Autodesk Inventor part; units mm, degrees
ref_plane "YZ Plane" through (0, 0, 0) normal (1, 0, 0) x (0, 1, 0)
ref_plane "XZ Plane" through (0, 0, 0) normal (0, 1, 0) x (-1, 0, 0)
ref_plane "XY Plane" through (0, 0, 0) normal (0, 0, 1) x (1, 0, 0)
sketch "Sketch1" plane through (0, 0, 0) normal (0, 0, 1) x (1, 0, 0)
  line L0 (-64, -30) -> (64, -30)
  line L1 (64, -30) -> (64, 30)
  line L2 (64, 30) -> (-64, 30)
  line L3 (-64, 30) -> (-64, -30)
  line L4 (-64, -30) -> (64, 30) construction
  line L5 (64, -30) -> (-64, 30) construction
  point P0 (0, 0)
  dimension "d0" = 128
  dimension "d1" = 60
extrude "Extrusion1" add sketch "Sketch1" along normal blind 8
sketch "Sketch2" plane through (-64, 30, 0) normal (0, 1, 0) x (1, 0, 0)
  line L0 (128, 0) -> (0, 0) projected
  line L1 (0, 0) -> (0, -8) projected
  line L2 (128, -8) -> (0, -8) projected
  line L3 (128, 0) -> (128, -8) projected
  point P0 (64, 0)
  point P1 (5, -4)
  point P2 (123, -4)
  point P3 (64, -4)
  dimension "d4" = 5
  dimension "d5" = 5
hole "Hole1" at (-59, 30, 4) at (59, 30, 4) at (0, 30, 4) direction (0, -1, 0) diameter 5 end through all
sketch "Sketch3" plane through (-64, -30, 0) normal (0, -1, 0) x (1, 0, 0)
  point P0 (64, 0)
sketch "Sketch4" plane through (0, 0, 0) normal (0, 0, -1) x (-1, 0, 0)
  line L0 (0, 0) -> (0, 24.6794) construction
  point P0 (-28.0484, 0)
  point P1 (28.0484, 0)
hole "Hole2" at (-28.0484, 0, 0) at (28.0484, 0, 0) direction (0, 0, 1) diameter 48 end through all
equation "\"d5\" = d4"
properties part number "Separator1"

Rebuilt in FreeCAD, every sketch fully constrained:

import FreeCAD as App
import Part
import Sketcher


def add_polygon(sketch, points):
    """Adds a closed chain of lines whose ends are joined by coincident constraints."""
    first, n = sketch.GeometryCount, len(points)
    for a, b in zip(points, points[1:] + points[:1]):
        sketch.addGeometry(Part.LineSegment(App.Vector(*a, 0), App.Vector(*b, 0)), False)
    for i in range(n):
        sketch.addConstraint(Sketcher.Constraint("Coincident", first + i, 2, first + (i + 1) % n, 1))

doc = App.newDocument("Part")
params = doc.addObject("Spreadsheet::Sheet", "Params")
for row, (alias, value) in enumerate([
    ("sketch1_width", "128 mm"),
    ("sketch1_height", "60 mm"),
    ("pad1_length", "8 mm"),
    ("sketch2_diameter", "5 mm"),
    ("hole_diameter", "5 mm"),
    ("sketch3_diameter", "48 mm"),
    ("hole2_diameter", "48 mm"),
], start=1):
    params.set(f"A{row}", alias)
    params.set(f"B{row}", "=" + value)
    params.setAlias(f"B{row}", alias)

body = doc.addObject("PartDesign::Body", "Body")

# Sketch on XY plane
sketch1 = body.newObject("Sketcher::SketchObject", "Sketch")
sketch1.AttachmentSupport = (doc.getObject("XY_Plane"), [""])
sketch1.MapMode = "FlatFace"
add_polygon(sketch1, [(-64, 30), (-64, -30), (64, -30), (64, 30)])  # lines 0-3
sketch1.addConstraint(Sketcher.Constraint("Vertical", 0))
sketch1.addConstraint(Sketcher.Constraint("Horizontal", 1))
sketch1.addConstraint(Sketcher.Constraint("Vertical", 2))
sketch1.addConstraint(Sketcher.Constraint("Horizontal", 3))
sketch1.addConstraint(Sketcher.Constraint("Symmetric", 0, 2, 2, 2, -1, 1))
sketch1.addConstraint(Sketcher.Constraint("DistanceX", 1, 1, 1, 2, 128.0))
sketch1.addConstraint(Sketcher.Constraint("DistanceY", 0, 2, 0, 1, 60.0))
sketch1.setExpression("Constraints[9]", "Params.sketch1_width")
sketch1.setExpression("Constraints[10]", "Params.sketch1_height")
pad1 = body.newObject("PartDesign::Pad", "Pad")
pad1.Profile = sketch1
pad1.setExpression("Length", "Params.pad1_length")

# Sketch on XZ plane
sketch2 = body.newObject("Sketcher::SketchObject", "Sketch001")
sketch2.AttachmentSupport = (doc.getObject("XZ_Plane"), [""])
sketch2.MapMode = "FlatFace"
sketch2.AttachmentOffset = App.Placement(App.Vector(0, 0, -30), App.Rotation())
sketch2.addGeometry(Part.Circle(App.Vector(-59, 4, 0), App.Vector(0, 0, 1), 2.5), False)
sketch2.addGeometry(Part.Circle(App.Vector(59, 4, 0), App.Vector(0, 0, 1), 2.5), False)
sketch2.addGeometry(Part.Circle(App.Vector(0, 4, 0), App.Vector(0, 0, 1), 2.5), False)
sketch2.addConstraint(Sketcher.Constraint("Equal", 0, 1))
sketch2.addConstraint(Sketcher.Constraint("Equal", 1, 2))
sketch2.addConstraint(Sketcher.Constraint("Symmetric", 0, 3, 1, 3, -2))
sketch2.addConstraint(Sketcher.Constraint("PointOnObject", 2, 3, -2))
sketch2.addConstraint(Sketcher.Constraint("Horizontal", 1, 3, 2, 3))
sketch2.addConstraint(Sketcher.Constraint("Diameter", 0, 5.0))
sketch2.addConstraint(Sketcher.Constraint("DistanceX", 0, 3, -1, 1, 59.0))
sketch2.addConstraint(Sketcher.Constraint("DistanceY", -1, 1, 0, 3, 4.0))
sketch2.setExpression("Constraints[5]", "Params.sketch2_diameter")
doc.recompute()
hole = body.newObject("PartDesign::Hole", "Hole")
hole.Profile = sketch2
hole.ThreadType = "None"
hole.setExpression("Diameter", "Params.hole_diameter")
hole.DepthType = "ThroughAll"
hole.Reversed = True

# Sketch on XY plane
sketch3 = body.newObject("Sketcher::SketchObject", "Sketch002")
sketch3.AttachmentSupport = (doc.getObject("XY_Plane"), [""])
sketch3.MapMode = "FlatFace"
sketch3.addGeometry(Part.Circle(App.Vector(-28, 0, 0), App.Vector(0, 0, 1), 24), False)
sketch3.addGeometry(Part.Circle(App.Vector(28, 0, 0), App.Vector(0, 0, 1), 24), False)
sketch3.addConstraint(Sketcher.Constraint("Equal", 0, 1))
sketch3.addConstraint(Sketcher.Constraint("Symmetric", 0, 3, 1, 3, -1, 1))
sketch3.addConstraint(Sketcher.Constraint("PointOnObject", 0, 3, -1))
sketch3.addConstraint(Sketcher.Constraint("Diameter", 0, 48.0))
sketch3.addConstraint(Sketcher.Constraint("DistanceX", 0, 3, -1, 1, 28.0484))
sketch3.setExpression("Constraints[3]", "Params.sketch3_diameter")
doc.recompute()
hole2 = body.newObject("PartDesign::Hole", "Hole001")
hole2.Profile = sketch3
hole2.ThreadType = "None"
hole2.setExpression("Diameter", "Params.hole2_diameter")
hole2.DepthType = "ThroughAll"
hole2.Reversed = True

doc.recompute()
